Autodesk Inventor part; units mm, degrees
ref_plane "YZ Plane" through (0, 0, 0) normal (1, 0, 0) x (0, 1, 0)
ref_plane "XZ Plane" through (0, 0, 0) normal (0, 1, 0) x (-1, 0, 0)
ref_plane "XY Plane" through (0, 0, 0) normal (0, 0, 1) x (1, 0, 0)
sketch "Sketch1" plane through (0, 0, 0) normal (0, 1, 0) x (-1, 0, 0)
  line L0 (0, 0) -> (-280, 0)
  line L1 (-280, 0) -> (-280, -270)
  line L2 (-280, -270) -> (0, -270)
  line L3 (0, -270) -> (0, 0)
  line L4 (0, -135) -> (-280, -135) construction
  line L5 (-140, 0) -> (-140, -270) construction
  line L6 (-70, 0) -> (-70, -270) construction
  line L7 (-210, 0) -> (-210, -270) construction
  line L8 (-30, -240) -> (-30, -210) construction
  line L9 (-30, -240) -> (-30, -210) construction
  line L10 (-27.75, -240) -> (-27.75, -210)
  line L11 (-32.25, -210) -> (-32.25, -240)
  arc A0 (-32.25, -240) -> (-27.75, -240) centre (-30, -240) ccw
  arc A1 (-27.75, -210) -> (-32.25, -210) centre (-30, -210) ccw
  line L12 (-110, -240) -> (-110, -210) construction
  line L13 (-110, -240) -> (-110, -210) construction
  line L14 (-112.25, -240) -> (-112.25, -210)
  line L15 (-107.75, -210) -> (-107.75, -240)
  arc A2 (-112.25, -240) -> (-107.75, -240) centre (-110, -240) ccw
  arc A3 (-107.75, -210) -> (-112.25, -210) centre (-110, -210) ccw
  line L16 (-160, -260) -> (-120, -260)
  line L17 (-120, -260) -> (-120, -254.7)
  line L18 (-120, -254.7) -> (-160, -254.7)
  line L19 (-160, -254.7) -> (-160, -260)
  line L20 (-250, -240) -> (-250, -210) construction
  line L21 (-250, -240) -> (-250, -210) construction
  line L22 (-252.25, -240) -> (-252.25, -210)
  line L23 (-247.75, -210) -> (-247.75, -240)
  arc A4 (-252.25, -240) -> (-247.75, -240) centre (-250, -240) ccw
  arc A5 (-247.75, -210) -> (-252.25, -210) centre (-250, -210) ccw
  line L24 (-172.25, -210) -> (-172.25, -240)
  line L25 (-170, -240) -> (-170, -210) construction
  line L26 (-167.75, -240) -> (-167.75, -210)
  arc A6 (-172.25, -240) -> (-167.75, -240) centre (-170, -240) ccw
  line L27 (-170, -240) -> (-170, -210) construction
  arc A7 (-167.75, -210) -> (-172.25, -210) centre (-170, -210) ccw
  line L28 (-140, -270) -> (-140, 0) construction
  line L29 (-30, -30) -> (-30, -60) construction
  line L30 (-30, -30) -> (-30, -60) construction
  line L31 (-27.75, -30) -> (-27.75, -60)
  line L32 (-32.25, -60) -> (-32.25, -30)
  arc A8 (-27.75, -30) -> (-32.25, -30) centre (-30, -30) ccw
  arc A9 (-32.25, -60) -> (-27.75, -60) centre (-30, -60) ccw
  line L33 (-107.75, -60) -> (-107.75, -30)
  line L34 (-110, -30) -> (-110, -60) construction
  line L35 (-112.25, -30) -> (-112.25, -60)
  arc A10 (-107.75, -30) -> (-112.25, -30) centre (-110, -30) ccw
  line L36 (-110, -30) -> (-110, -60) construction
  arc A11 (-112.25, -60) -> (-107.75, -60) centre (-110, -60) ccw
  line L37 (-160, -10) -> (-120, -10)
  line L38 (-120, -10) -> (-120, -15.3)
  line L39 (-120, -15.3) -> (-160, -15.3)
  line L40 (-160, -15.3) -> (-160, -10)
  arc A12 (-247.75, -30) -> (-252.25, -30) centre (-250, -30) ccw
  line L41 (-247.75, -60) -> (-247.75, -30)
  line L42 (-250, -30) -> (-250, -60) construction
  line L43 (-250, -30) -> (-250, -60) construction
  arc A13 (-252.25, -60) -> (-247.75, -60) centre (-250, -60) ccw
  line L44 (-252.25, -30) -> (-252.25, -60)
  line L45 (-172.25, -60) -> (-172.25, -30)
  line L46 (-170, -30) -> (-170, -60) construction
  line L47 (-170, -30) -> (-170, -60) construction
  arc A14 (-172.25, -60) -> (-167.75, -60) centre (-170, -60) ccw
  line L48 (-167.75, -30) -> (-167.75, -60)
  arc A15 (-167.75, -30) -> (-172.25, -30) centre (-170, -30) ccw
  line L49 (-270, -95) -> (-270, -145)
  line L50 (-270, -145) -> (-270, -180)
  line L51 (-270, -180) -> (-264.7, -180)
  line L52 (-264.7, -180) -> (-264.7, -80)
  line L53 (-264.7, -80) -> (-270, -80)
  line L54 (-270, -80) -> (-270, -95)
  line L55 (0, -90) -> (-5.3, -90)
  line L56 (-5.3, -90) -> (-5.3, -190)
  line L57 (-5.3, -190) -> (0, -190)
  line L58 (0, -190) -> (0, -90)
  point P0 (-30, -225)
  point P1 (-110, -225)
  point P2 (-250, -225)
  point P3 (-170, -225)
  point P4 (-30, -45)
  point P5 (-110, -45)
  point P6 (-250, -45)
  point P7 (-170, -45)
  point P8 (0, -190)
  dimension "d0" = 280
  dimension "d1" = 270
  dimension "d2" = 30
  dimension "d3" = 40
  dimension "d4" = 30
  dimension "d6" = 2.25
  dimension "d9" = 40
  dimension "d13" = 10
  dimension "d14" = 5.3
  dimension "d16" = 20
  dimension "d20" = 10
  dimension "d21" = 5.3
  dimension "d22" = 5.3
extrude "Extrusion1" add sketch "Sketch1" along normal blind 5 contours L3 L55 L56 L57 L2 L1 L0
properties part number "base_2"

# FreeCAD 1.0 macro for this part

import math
import FreeCAD as App
import Part
import Sketcher
from FreeCAD import Vector

doc = App.newDocument("Part")
params = doc.addObject("Spreadsheet::Sheet", "Params")
for row, (alias, value) in enumerate([
    ("sketch1_width", "280 mm"),
    ("sketch1_width2", "40 mm"),
    ("sketch1_height", "270 mm"),
    ("sketch1_height2", "30 mm"),
    ("sketch1_radius", "2.25 mm"),
    ("pad1_length", "5 mm"),
], start=1):
    params.set(f"A{row}", alias)
    params.set(f"B{row}", "=" + value)
    params.setAlias(f"B{row}", alias)

body = doc.addObject("PartDesign::Body", "Body")

# Sketch on XZ plane
sketch1 = body.newObject("Sketcher::SketchObject", "Sketch")
sketch1.AttachmentSupport = (doc.getObject("XZ_Plane"), [""])
sketch1.MapMode = "FlatFace"
sketch1.addGeometry(Part.LineSegment(Vector(0, -90, 0), Vector(0, 0, 0)), False)
sketch1.addGeometry(Part.LineSegment(Vector(0, 0, 0), Vector(280, 0, 0)), False)
sketch1.addGeometry(Part.LineSegment(Vector(280, 0, 0), Vector(280, -270, 0)), False)
sketch1.addGeometry(Part.LineSegment(Vector(280, -270, 0), Vector(0, -270, 0)), False)
sketch1.addGeometry(Part.LineSegment(Vector(0, -270, 0), Vector(0, -190, 0)), False)
sketch1.addGeometry(Part.LineSegment(Vector(0, -190, 0), Vector(5.3, -190, 0)), False)
sketch1.addGeometry(Part.LineSegment(Vector(5.3, -190, 0), Vector(5.3, -90, 0)), False)
sketch1.addGeometry(Part.LineSegment(Vector(5.3, -90, 0), Vector(0, -90, 0)), False)
sketch1.addGeometry(Part.ArcOfCircle(Part.Circle(Vector(250, -240, 0), Vector(0, 0, 1), 2.2), math.radians(180), math.radians(360)), False)
sketch1.addGeometry(Part.LineSegment(Vector(252.2, -240, 0), Vector(252.2, -210, 0)), False)
sketch1.addGeometry(Part.ArcOfCircle(Part.Circle(Vector(250, -210, 0), Vector(0, 0, 1), 2.2), math.radians(0), math.radians(180)), False)
sketch1.addGeometry(Part.LineSegment(Vector(247.8, -210, 0), Vector(247.8, -240, 0)), False)
sketch1.addGeometry(Part.LineSegment(Vector(172.2, -240, 0), Vector(172.2, -210, 0)), False)
sketch1.addGeometry(Part.ArcOfCircle(Part.Circle(Vector(170, -210, 0), Vector(0, 0, 1), 2.2), math.radians(0), math.radians(180)), False)
sketch1.addGeometry(Part.LineSegment(Vector(167.8, -210, 0), Vector(167.8, -240, 0)), False)
sketch1.addGeometry(Part.ArcOfCircle(Part.Circle(Vector(170, -240, 0), Vector(0, 0, 1), 2.2), math.radians(180), math.radians(360)), False)
sketch1.addGeometry(Part.LineSegment(Vector(120, -260, 0), Vector(160, -260, 0)), False)
sketch1.addGeometry(Part.LineSegment(Vector(160, -260, 0), Vector(160, -254.7, 0)), False)
sketch1.addGeometry(Part.LineSegment(Vector(160, -254.7, 0), Vector(120, -254.7, 0)), False)
sketch1.addGeometry(Part.LineSegment(Vector(120, -254.7, 0), Vector(120, -260, 0)), False)
sketch1.addGeometry(Part.ArcOfCircle(Part.Circle(Vector(110, -240, 0), Vector(0, 0, 1), 2.2), math.radians(180), math.radians(360)), False)
sketch1.addGeometry(Part.LineSegment(Vector(112.2, -240, 0), Vector(112.2, -210, 0)), False)
sketch1.addGeometry(Part.ArcOfCircle(Part.Circle(Vector(110, -210, 0), Vector(0, 0, 1), 2.2), math.radians(0), math.radians(180)), False)
sketch1.addGeometry(Part.LineSegment(Vector(107.8, -210, 0), Vector(107.8, -240, 0)), False)
sketch1.addGeometry(Part.LineSegment(Vector(27.8, -210, 0), Vector(27.8, -240, 0)), False)
sketch1.addGeometry(Part.ArcOfCircle(Part.Circle(Vector(30, -240, 0), Vector(0, 0, 1), 2.2), math.radians(180), math.radians(360)), False)
sketch1.addGeometry(Part.LineSegment(Vector(32.2, -240, 0), Vector(32.2, -210, 0)), False)
sketch1.addGeometry(Part.ArcOfCircle(Part.Circle(Vector(30, -210, 0), Vector(0, 0, 1), 2.2), math.radians(0), math.radians(180)), False)
sketch1.addGeometry(Part.LineSegment(Vector(270, -180, 0), Vector(270, -80, 0)), False)
sketch1.addGeometry(Part.LineSegment(Vector(270, -80, 0), Vector(264.7, -80, 0)), False)
sketch1.addGeometry(Part.LineSegment(Vector(264.7, -80, 0), Vector(264.7, -180, 0)), False)
sketch1.addGeometry(Part.LineSegment(Vector(264.7, -180, 0), Vector(270, -180, 0)), False)
sketch1.addGeometry(Part.ArcOfCircle(Part.Circle(Vector(250, -30, 0), Vector(0, 0, 1), 2.2), math.radians(0), math.radians(180)), False)
sketch1.addGeometry(Part.LineSegment(Vector(247.8, -30, 0), Vector(247.8, -60, 0)), False)
sketch1.addGeometry(Part.ArcOfCircle(Part.Circle(Vector(250, -60, 0), Vector(0, 0, 1), 2.2), math.radians(180), math.radians(360)), False)
sketch1.addGeometry(Part.LineSegment(Vector(252.2, -60, 0), Vector(252.2, -30, 0)), False)
sketch1.addGeometry(Part.ArcOfCircle(Part.Circle(Vector(170, -60, 0), Vector(0, 0, 1), 2.2), math.radians(180), math.radians(360)), False)
sketch1.addGeometry(Part.LineSegment(Vector(172.2, -60, 0), Vector(172.2, -30, 0)), False)
sketch1.addGeometry(Part.ArcOfCircle(Part.Circle(Vector(170, -30, 0), Vector(0, 0, 1), 2.2), math.radians(0), math.radians(180)), False)
sketch1.addGeometry(Part.LineSegment(Vector(167.8, -30, 0), Vector(167.8, -60, 0)), False)
sketch1.addGeometry(Part.LineSegment(Vector(107.8, -30, 0), Vector(107.8, -60, 0)), False)
sketch1.addGeometry(Part.ArcOfCircle(Part.Circle(Vector(110, -60, 0), Vector(0, 0, 1), 2.2), math.radians(180), math.radians(360)), False)
sketch1.addGeometry(Part.LineSegment(Vector(112.2, -60, 0), Vector(112.2, -30, 0)), False)
sketch1.addGeometry(Part.ArcOfCircle(Part.Circle(Vector(110, -30, 0), Vector(0, 0, 1), 2.2), math.radians(0), math.radians(180)), False)
sketch1.addGeometry(Part.LineSegment(Vector(160, -15.3, 0), Vector(160, -10, 0)), False)
sketch1.addGeometry(Part.LineSegment(Vector(160, -10, 0), Vector(120, -10, 0)), False)
sketch1.addGeometry(Part.LineSegment(Vector(120, -10, 0), Vector(120, -15.3, 0)), False)
sketch1.addGeometry(Part.LineSegment(Vector(120, -15.3, 0), Vector(160, -15.3, 0)), False)
sketch1.addGeometry(Part.ArcOfCircle(Part.Circle(Vector(30, -30, 0), Vector(0, 0, 1), 2.2), math.radians(0), math.radians(180)), False)
sketch1.addGeometry(Part.LineSegment(Vector(27.8, -30, 0), Vector(27.8, -60, 0)), False)
sketch1.addGeometry(Part.ArcOfCircle(Part.Circle(Vector(30, -60, 0), Vector(0, 0, 1), 2.2), math.radians(180), math.radians(360)), False)
sketch1.addGeometry(Part.LineSegment(Vector(32.2, -60, 0), Vector(32.2, -30, 0)), False)
sketch1.addConstraint(Sketcher.Constraint("Coincident", 0, 2, 1, 1))
sketch1.addConstraint(Sketcher.Constraint("Coincident", 1, 2, 2, 1))
sketch1.addConstraint(Sketcher.Constraint("Coincident", 2, 2, 3, 1))
sketch1.addConstraint(Sketcher.Constraint("Coincident", 3, 2, 4, 1))
sketch1.addConstraint(Sketcher.Constraint("Coincident", 4, 2, 5, 1))
sketch1.addConstraint(Sketcher.Constraint("Coincident", 5, 2, 6, 1))
sketch1.addConstraint(Sketcher.Constraint("Coincident", 6, 2, 7, 1))
sketch1.addConstraint(Sketcher.Constraint("Coincident", 7, 2, 0, 1))
sketch1.addConstraint(Sketcher.Constraint("Tangent", 8, 2, 9, 1))
sketch1.addConstraint(Sketcher.Constraint("Tangent", 9, 2, 10, 1))
sketch1.addConstraint(Sketcher.Constraint("Tangent", 10, 2, 11, 1))
sketch1.addConstraint(Sketcher.Constraint("Tangent", 11, 2, 8, 1))
sketch1.addConstraint(Sketcher.Constraint("Tangent", 12, 2, 13, 1))
sketch1.addConstraint(Sketcher.Constraint("Tangent", 13, 2, 14, 1))
sketch1.addConstraint(Sketcher.Constraint("Tangent", 14, 2, 15, 1))
sketch1.addConstraint(Sketcher.Constraint("Tangent", 15, 2, 12, 1))
sketch1.addConstraint(Sketcher.Constraint("Coincident", 16, 2, 17, 1))
sketch1.addConstraint(Sketcher.Constraint("Coincident", 17, 2, 18, 1))
sketch1.addConstraint(Sketcher.Constraint("Coincident", 18, 2, 19, 1))
sketch1.addConstraint(Sketcher.Constraint("Coincident", 19, 2, 16, 1))
sketch1.addConstraint(Sketcher.Constraint("Tangent", 20, 2, 21, 1))
sketch1.addConstraint(Sketcher.Constraint("Tangent", 21, 2, 22, 1))
sketch1.addConstraint(Sketcher.Constraint("Tangent", 22, 2, 23, 1))
sketch1.addConstraint(Sketcher.Constraint("Tangent", 23, 2, 20, 1))
sketch1.addConstraint(Sketcher.Constraint("Tangent", 24, 2, 25, 1))
sketch1.addConstraint(Sketcher.Constraint("Tangent", 25, 2, 26, 1))
sketch1.addConstraint(Sketcher.Constraint("Tangent", 26, 2, 27, 1))
sketch1.addConstraint(Sketcher.Constraint("Tangent", 27, 2, 24, 1))
sketch1.addConstraint(Sketcher.Constraint("Coincident", 28, 2, 29, 1))
sketch1.addConstraint(Sketcher.Constraint("Coincident", 29, 2, 30, 1))
sketch1.addConstraint(Sketcher.Constraint("Coincident", 30, 2, 31, 1))
sketch1.addConstraint(Sketcher.Constraint("Coincident", 31, 2, 28, 1))
sketch1.addConstraint(Sketcher.Constraint("Tangent", 32, 2, 33, 1))
sketch1.addConstraint(Sketcher.Constraint("Tangent", 33, 2, 34, 1))
sketch1.addConstraint(Sketcher.Constraint("Tangent", 34, 2, 35, 1))
sketch1.addConstraint(Sketcher.Constraint("Tangent", 35, 2, 32, 1))
sketch1.addConstraint(Sketcher.Constraint("Tangent", 36, 2, 37, 1))
sketch1.addConstraint(Sketcher.Constraint("Tangent", 37, 2, 38, 1))
sketch1.addConstraint(Sketcher.Constraint("Tangent", 38, 2, 39, 1))
sketch1.addConstraint(Sketcher.Constraint("Tangent", 39, 2, 36, 1))
sketch1.addConstraint(Sketcher.Constraint("Tangent", 40, 2, 41, 1))
sketch1.addConstraint(Sketcher.Constraint("Tangent", 41, 2, 42, 1))
sketch1.addConstraint(Sketcher.Constraint("Tangent", 42, 2, 43, 1))
sketch1.addConstraint(Sketcher.Constraint("Tangent", 43, 2, 40, 1))
sketch1.addConstraint(Sketcher.Constraint("Coincident", 44, 2, 45, 1))
sketch1.addConstraint(Sketcher.Constraint("Coincident", 45, 2, 46, 1))
sketch1.addConstraint(Sketcher.Constraint("Coincident", 46, 2, 47, 1))
sketch1.addConstraint(Sketcher.Constraint("Coincident", 47, 2, 44, 1))
sketch1.addConstraint(Sketcher.Constraint("Tangent", 48, 2, 49, 1))
sketch1.addConstraint(Sketcher.Constraint("Tangent", 49, 2, 50, 1))
sketch1.addConstraint(Sketcher.Constraint("Tangent", 50, 2, 51, 1))
sketch1.addConstraint(Sketcher.Constraint("Tangent", 51, 2, 48, 1))
sketch1.addConstraint(Sketcher.Constraint("Vertical", 0))
sketch1.addConstraint(Sketcher.Constraint("Horizontal", 1))
sketch1.addConstraint(Sketcher.Constraint("Vertical", 2))
sketch1.addConstraint(Sketcher.Constraint("Horizontal", 3))
sketch1.addConstraint(Sketcher.Constraint("Vertical", 4))
sketch1.addConstraint(Sketcher.Constraint("Horizontal", 5))
sketch1.addConstraint(Sketcher.Constraint("Vertical", 6))
sketch1.addConstraint(Sketcher.Constraint("Horizontal", 7))
sketch1.addConstraint(Sketcher.Constraint("Vertical", 9))
sketch1.addConstraint(Sketcher.Constraint("Vertical", 11))
sketch1.addConstraint(Sketcher.Constraint("Vertical", 12))
sketch1.addConstraint(Sketcher.Constraint("Vertical", 14))
sketch1.addConstraint(Sketcher.Constraint("Horizontal", 16))
sketch1.addConstraint(Sketcher.Constraint("Vertical", 17))
sketch1.addConstraint(Sketcher.Constraint("Horizontal", 18))
sketch1.addConstraint(Sketcher.Constraint("Vertical", 19))
sketch1.addConstraint(Sketcher.Constraint("Vertical", 21))
sketch1.addConstraint(Sketcher.Constraint("Vertical", 23))
sketch1.addConstraint(Sketcher.Constraint("Vertical", 24))
sketch1.addConstraint(Sketcher.Constraint("Vertical", 26))
sketch1.addConstraint(Sketcher.Constraint("Vertical", 28))
sketch1.addConstraint(Sketcher.Constraint("Horizontal", 29))
sketch1.addConstraint(Sketcher.Constraint("Vertical", 30))
sketch1.addConstraint(Sketcher.Constraint("Horizontal", 31))
sketch1.addConstraint(Sketcher.Constraint("Vertical", 33))
sketch1.addConstraint(Sketcher.Constraint("Vertical", 35))
sketch1.addConstraint(Sketcher.Constraint("Vertical", 37))
sketch1.addConstraint(Sketcher.Constraint("Vertical", 39))
sketch1.addConstraint(Sketcher.Constraint("Vertical", 40))
sketch1.addConstraint(Sketcher.Constraint("Vertical", 42))
sketch1.addConstraint(Sketcher.Constraint("Vertical", 44))
sketch1.addConstraint(Sketcher.Constraint("Horizontal", 45))
sketch1.addConstraint(Sketcher.Constraint("Vertical", 46))
sketch1.addConstraint(Sketcher.Constraint("Horizontal", 47))
sketch1.addConstraint(Sketcher.Constraint("Vertical", 49))
sketch1.addConstraint(Sketcher.Constraint("Vertical", 51))
sketch1.addConstraint(Sketcher.Constraint("Coincident", 0, 2, -1, 1))
sketch1.addConstraint(Sketcher.Constraint("Equal", 10, 13))
sketch1.addConstraint(Sketcher.Constraint("Equal", 15, 20))
sketch1.addConstraint(Sketcher.Constraint("Equal", 22, 25))
sketch1.addConstraint(Sketcher.Constraint("Equal", 27, 32))
sketch1.addConstraint(Sketcher.Constraint("Equal", 34, 36))
sketch1.addConstraint(Sketcher.Constraint("Equal", 38, 41))
sketch1.addConstraint(Sketcher.Constraint("Equal", 43, 48))
sketch1.addConstraint(Sketcher.Constraint("PointOnObject", 3, 2, -2))
sketch1.addConstraint(Sketcher.Constraint("Horizontal", 10, 3, 13, 3))
sketch1.addConstraint(Sketcher.Constraint("Horizontal", 8, 3, 15, 3))
sketch1.addConstraint(Sketcher.Constraint("Horizontal", 15, 3, 20, 3))
sketch1.addConstraint(Sketcher.Constraint("Horizontal", 13, 3, 22, 3))
sketch1.addConstraint(Sketcher.Constraint("Horizontal", 20, 3, 25, 3))
sketch1.addConstraint(Sketcher.Constraint("Horizontal", 22, 3, 27, 3))
sketch1.addConstraint(Sketcher.Constraint("Horizontal", 34, 3, 36, 3))
sketch1.addConstraint(Sketcher.Constraint("Horizontal", 32, 3, 38, 3))
sketch1.addConstraint(Sketcher.Constraint("Horizontal", 36, 3, 41, 3))
sketch1.addConstraint(Sketcher.Constraint("Horizontal", 38, 3, 43, 3))
sketch1.addConstraint(Sketcher.Constraint("Horizontal", 43, 3, 48, 3))
sketch1.addConstraint(Sketcher.Constraint("Horizontal", 41, 3, 50, 3))
sketch1.addConstraint(Sketcher.Constraint("Vertical", 10, 3, 32, 3))
sketch1.addConstraint(Sketcher.Constraint("Vertical", 15, 3, 36, 3))
sketch1.addConstraint(Sketcher.Constraint("Vertical", 22, 3, 41, 3))
sketch1.addConstraint(Sketcher.Constraint("Vertical", 27, 3, 48, 3))
sketch1.addConstraint(Sketcher.Constraint("Vertical", 17, 2, 44, 2))
sketch1.addConstraint(Sketcher.Constraint("Vertical", 19, 2, 45, 2))
sketch1.addConstraint(Sketcher.Constraint("Equal", 7, 29))
sketch1.addConstraint(Sketcher.Constraint("Equal", 31, 17))
sketch1.addConstraint(Sketcher.Constraint("Equal", 6, 28))
sketch1.addConstraint(Sketcher.Constraint("Equal", 26, 33))
sketch1.addConstraint(Sketcher.Constraint("Equal", 19, 44))
sketch1.addConstraint(Sketcher.Constraint("DistanceX", 1, 1, 1, 2, 280.0))
sketch1.addConstraint(Sketcher.Constraint("DistanceX", 16, 1, 16, 2, 40.0))
sketch1.addConstraint(Sketcher.Constraint("DistanceY", 2, 2, 2, 1, 270.0))
sketch1.addConstraint(Sketcher.Constraint("DistanceY", 9, 1, 9, 2, 30.0))
sketch1.addConstraint(Sketcher.Constraint("Radius", 8, 2.25))
sketch1.addConstraint(Sketcher.Constraint("DistanceX", 5, 1, 5, 2, 5.3))
sketch1.addConstraint(Sketcher.Constraint("DistanceX", -1, 1, 25, 3, 30.0))
sketch1.addConstraint(Sketcher.Constraint("DistanceY", 32, 3, -1, 1, 30.0))
sketch1.addConstraint(Sketcher.Constraint("DistanceX", -1, 1, 28, 2, 270.0))
sketch1.addConstraint(Sketcher.Constraint("DistanceY", 44, 2, -1, 1, 10.0))
sketch1.addConstraint(Sketcher.Constraint("DistanceY", 0, 1, 0, 2, 90.0))
sketch1.addConstraint(Sketcher.Constraint("DistanceY", 4, 1, 4, 2, 80.0))
sketch1.addConstraint(Sketcher.Constraint("DistanceX", -1, 1, 8, 3, 250.0))
sketch1.addConstraint(Sketcher.Constraint("DistanceY", 8, 3, -1, 1, 240.0))
sketch1.addConstraint(Sketcher.Constraint("DistanceX", -1, 1, 13, 3, 170.0))
sketch1.addConstraint(Sketcher.Constraint("DistanceX", -1, 1, 20, 3, 110.0))
sketch1.addConstraint(Sketcher.Constraint("DistanceX", -1, 1, 16, 2, 160.0))
sketch1.addConstraint(Sketcher.Constraint("DistanceY", 16, 2, -1, 1, 260.0))
sketch1.addConstraint(Sketcher.Constraint("DistanceY", 28, 2, -1, 1, 80.0))
sketch1.setExpression("Constraints[120]", "Params.sketch1_width")
sketch1.setExpression("Constraints[121]", "Params.sketch1_width2")
sketch1.setExpression("Constraints[122]", "Params.sketch1_height")
sketch1.setExpression("Constraints[123]", "Params.sketch1_height2")
sketch1.setExpression("Constraints[124]", "Params.sketch1_radius")
pad1 = body.newObject("PartDesign::Pad", "Pad")
pad1.Profile = sketch1
pad1.setExpression("Length", "Params.pad1_length")
pad1.Reversed = True

doc.recompute()
